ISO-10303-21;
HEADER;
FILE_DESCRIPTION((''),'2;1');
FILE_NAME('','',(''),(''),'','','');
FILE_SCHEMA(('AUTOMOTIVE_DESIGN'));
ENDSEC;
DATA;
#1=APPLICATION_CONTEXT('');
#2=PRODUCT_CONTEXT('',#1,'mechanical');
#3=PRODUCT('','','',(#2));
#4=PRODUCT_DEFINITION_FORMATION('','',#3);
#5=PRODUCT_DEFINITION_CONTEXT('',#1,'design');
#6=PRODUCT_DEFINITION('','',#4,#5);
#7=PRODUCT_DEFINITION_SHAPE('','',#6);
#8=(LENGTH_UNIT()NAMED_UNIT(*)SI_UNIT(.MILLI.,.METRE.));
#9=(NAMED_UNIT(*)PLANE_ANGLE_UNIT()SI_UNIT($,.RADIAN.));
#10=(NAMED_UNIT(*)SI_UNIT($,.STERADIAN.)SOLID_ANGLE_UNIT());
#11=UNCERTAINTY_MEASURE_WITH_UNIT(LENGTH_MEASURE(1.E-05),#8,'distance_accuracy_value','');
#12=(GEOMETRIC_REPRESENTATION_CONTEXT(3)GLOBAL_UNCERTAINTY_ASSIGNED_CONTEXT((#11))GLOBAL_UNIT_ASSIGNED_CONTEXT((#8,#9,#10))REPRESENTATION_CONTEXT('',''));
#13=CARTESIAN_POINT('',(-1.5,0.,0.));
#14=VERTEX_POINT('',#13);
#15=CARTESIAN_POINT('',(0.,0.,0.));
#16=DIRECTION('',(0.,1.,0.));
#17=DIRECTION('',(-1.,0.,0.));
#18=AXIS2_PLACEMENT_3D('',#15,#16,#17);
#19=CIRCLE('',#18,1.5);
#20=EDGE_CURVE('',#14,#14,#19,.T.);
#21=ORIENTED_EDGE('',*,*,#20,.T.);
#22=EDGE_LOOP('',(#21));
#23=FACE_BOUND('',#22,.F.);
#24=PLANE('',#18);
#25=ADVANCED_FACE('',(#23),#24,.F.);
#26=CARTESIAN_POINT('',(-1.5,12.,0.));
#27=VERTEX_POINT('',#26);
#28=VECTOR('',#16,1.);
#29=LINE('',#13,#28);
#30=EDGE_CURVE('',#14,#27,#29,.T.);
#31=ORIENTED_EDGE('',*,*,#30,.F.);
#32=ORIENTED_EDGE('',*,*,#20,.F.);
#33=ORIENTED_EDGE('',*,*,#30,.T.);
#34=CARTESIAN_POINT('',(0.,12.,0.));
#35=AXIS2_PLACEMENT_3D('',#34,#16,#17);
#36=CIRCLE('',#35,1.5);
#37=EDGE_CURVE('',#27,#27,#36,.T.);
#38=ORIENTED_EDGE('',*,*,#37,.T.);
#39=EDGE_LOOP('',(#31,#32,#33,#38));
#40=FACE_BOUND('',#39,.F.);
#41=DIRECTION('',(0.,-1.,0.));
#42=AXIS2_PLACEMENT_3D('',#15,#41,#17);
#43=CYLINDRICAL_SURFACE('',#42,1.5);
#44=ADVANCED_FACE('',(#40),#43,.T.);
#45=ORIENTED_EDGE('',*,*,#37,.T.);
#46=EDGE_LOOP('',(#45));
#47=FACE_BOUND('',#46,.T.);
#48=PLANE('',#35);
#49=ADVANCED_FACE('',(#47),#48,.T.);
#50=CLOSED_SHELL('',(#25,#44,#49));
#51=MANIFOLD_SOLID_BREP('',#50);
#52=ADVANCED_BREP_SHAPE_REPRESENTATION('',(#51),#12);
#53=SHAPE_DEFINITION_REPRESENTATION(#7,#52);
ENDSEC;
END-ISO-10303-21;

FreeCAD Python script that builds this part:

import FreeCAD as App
import Part
import Sketcher
from FreeCAD import Vector

doc = App.newDocument("Part")
body = doc.addObject("PartDesign::Body", "Body")

# Sketch on XZ plane
sketch1 = doc.addObject("Sketcher::SketchObject", "Sketch")
body.addObject(sketch1)
sketch1.AttachmentSupport = (doc.XZ_Plane, [""])
sketch1.MapMode = "FlatFace"
sketch1.addGeometry(Part.Circle(Vector(0, 0, 0), Vector(0, 0, 1), 1.5), False)
sketch1.addConstraint(Sketcher.Constraint("Coincident", 0, 3, -1, 1))
sketch1.addConstraint(Sketcher.Constraint("Diameter", 0, 3.0))
pad1 = doc.addObject("PartDesign::Pad", "Pad")
body.addObject(pad1)
pad1.Profile = sketch1
pad1.Length = 12
pad1.Reversed = True

doc.recompute()
